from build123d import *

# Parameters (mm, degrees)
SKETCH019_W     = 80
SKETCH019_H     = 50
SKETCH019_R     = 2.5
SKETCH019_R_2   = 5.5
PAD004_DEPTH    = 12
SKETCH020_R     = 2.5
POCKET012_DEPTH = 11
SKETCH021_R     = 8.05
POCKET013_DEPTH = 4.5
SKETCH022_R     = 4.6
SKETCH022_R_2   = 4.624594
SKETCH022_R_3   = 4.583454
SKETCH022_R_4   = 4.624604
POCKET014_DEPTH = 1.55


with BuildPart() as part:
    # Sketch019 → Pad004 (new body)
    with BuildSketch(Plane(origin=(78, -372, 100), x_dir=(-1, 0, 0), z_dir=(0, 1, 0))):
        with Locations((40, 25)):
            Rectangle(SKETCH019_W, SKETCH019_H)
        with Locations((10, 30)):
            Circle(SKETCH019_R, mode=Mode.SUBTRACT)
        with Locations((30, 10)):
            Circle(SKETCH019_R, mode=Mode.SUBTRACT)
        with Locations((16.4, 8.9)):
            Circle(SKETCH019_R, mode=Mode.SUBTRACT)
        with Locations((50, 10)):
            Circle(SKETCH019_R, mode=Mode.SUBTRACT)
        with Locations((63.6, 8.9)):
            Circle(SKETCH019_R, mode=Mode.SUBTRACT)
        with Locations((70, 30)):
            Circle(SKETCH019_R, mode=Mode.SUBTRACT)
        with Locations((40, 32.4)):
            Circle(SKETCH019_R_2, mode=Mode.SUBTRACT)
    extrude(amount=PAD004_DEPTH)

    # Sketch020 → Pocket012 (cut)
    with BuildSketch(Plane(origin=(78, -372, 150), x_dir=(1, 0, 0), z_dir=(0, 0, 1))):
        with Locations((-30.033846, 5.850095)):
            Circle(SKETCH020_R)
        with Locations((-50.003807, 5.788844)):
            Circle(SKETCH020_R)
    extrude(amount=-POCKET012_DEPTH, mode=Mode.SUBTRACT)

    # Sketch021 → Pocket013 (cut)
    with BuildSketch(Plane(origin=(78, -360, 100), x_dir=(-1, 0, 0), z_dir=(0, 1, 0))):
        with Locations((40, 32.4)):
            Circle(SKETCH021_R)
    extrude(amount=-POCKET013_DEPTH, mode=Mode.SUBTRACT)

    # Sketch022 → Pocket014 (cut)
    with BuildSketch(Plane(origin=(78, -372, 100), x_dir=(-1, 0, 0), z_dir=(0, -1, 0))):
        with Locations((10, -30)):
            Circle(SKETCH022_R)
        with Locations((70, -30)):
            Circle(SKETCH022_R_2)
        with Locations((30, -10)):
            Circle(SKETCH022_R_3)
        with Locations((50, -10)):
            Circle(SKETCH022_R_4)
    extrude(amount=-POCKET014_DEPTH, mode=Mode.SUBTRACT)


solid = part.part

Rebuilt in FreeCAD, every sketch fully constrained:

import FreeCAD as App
import Part
import Sketcher

V = App.Vector


def add_polygon(sketch, points):
    """Adds a closed chain of lines whose ends are joined by coincident constraints."""
    first, n = sketch.GeometryCount, len(points)
    for a, b in zip(points, points[1:] + points[:1]):
        sketch.addGeometry(Part.LineSegment(App.Vector(*a, 0), App.Vector(*b, 0)), False)
    for i in range(n):
        sketch.addConstraint(Sketcher.Constraint("Coincident", first + i, 2, first + (i + 1) % n, 1))

doc = App.newDocument("Part")
body = doc.addObject("PartDesign::Body", "Body")

# Sketch on XZ plane
sketch1 = body.newObject("Sketcher::SketchObject", "Sketch")
sketch1.AttachmentSupport = (doc.getObject("XZ_Plane"), [""])
sketch1.MapMode = "FlatFace"
sketch1.AttachmentOffset = App.Placement(V(0, 0, 372), App.Rotation())
add_polygon(sketch1, [(78, 150), (78, 100), (-2, 100), (-2, 150)])  # lines 0-3
sketch1.addGeometry(Part.Circle(V(61.6, 108.9, 0), V(0, 0, 1), 2.5), False)  # 4
sketch1.addGeometry(Part.Circle(V(48, 110, 0), V(0, 0, 1), 2.5), False)  # 5
sketch1.addGeometry(Part.Circle(V(28, 110, 0), V(0, 0, 1), 2.5), False)  # 6
sketch1.addGeometry(Part.Circle(V(14.4, 108.9, 0), V(0, 0, 1), 2.5), False)  # 7
sketch1.addGeometry(Part.Circle(V(68, 130, 0), V(0, 0, 1), 2.5), False)  # 8
sketch1.addGeometry(Part.Circle(V(8, 130, 0), V(0, 0, 1), 2.5), False)  # 9
sketch1.addGeometry(Part.Circle(V(38, 132.4, 0), V(0, 0, 1), 5.5), False)  # 10
sketch1.addConstraint(Sketcher.Constraint("Vertical", 0))
sketch1.addConstraint(Sketcher.Constraint("Horizontal", 1))
sketch1.addConstraint(Sketcher.Constraint("Vertical", 2))
sketch1.addConstraint(Sketcher.Constraint("Horizontal", 3))
sketch1.addConstraint(Sketcher.Constraint("Equal", 4, 5))
sketch1.addConstraint(Sketcher.Constraint("Equal", 5, 6))
sketch1.addConstraint(Sketcher.Constraint("Equal", 6, 7))
sketch1.addConstraint(Sketcher.Constraint("Equal", 7, 8))
sketch1.addConstraint(Sketcher.Constraint("Equal", 8, 9))
sketch1.addConstraint(Sketcher.Constraint("Horizontal", 5, 3, 6, 3))
sketch1.addConstraint(Sketcher.Constraint("Horizontal", 4, 3, 7, 3))
sketch1.addConstraint(Sketcher.Constraint("Horizontal", 8, 3, 9, 3))
sketch1.addConstraint(Sketcher.Constraint("Diameter", 4, 5.0))
sketch1.addConstraint(Sketcher.Constraint("Diameter", 10, 11.0))
sketch1.addConstraint(Sketcher.Constraint("DistanceX", 1, 2, 1, 1, 80.0))
sketch1.addConstraint(Sketcher.Constraint("DistanceY", 0, 2, 0, 1, 50.0))
sketch1.addConstraint(Sketcher.Constraint("DistanceX", -1, 1, 5, 3, 48.0))
sketch1.addConstraint(Sketcher.Constraint("DistanceY", -1, 1, 5, 3, 110.0))
sketch1.addConstraint(Sketcher.Constraint("DistanceX", -1, 1, 6, 3, 28.0))
sketch1.addConstraint(Sketcher.Constraint("DistanceX", -1, 1, 8, 3, 68.0))
sketch1.addConstraint(Sketcher.Constraint("DistanceY", -1, 1, 8, 3, 130.0))
sketch1.addConstraint(Sketcher.Constraint("DistanceX", -1, 1, 9, 3, 8.0))
sketch1.addConstraint(Sketcher.Constraint("DistanceX", -1, 1, 10, 3, 38.0))
sketch1.addConstraint(Sketcher.Constraint("DistanceX", -1, 1, 0, 2, 78.0))
sketch1.addConstraint(Sketcher.Constraint("DistanceY", -1, 1, 0, 2, 100.0))
sketch1.addConstraint(Sketcher.Constraint("DistanceX", -1, 1, 4, 3, 61.6))
sketch1.addConstraint(Sketcher.Constraint("DistanceY", -1, 1, 4, 3, 108.9))
sketch1.addConstraint(Sketcher.Constraint("DistanceX", -1, 1, 7, 3, 14.4))
sketch1.addConstraint(Sketcher.Constraint("DistanceY", -1, 1, 10, 3, 132.4))
pad1 = body.newObject("PartDesign::Pad", "Pad")
pad1.Profile = sketch1
pad1.Length = 12
pad1.Reversed = True

# Sketch on XY plane
sketch2 = body.newObject("Sketcher::SketchObject", "Sketch001")
sketch2.AttachmentSupport = (doc.getObject("XY_Plane"), [""])
sketch2.MapMode = "FlatFace"
sketch2.AttachmentOffset = App.Placement(V(0, 0, 150), App.Rotation())
sketch2.addGeometry(Part.Circle(V(47.966154, -366.149905, 0), V(0, 0, 1), 2.5), False)
sketch2.addGeometry(Part.Circle(V(27.996193, -366.211156, 0), V(0, 0, 1), 2.5), False)
sketch2.addConstraint(Sketcher.Constraint("Equal", 0, 1))
sketch2.addConstraint(Sketcher.Constraint("Diameter", 0, 5.0))
sketch2.addConstraint(Sketcher.Constraint("DistanceX", 1, 3, 0, 3, 19.969961))
sketch2.addConstraint(Sketcher.Constraint("DistanceY", 1, 3, 0, 3, 0.061251))
sketch2.addConstraint(Sketcher.Constraint("DistanceX", -1, 1, 0, 3, 47.966154))
sketch2.addConstraint(Sketcher.Constraint("DistanceY", 0, 3, -1, 1, 366.149905))
pocket1 = body.newObject("PartDesign::Pocket", "Pocket")
pocket1.Profile = sketch2
pocket1.Length = 11

# Sketch on XZ plane
sketch3 = body.newObject("Sketcher::SketchObject", "Sketch002")
sketch3.AttachmentSupport = (doc.getObject("XZ_Plane"), [""])
sketch3.MapMode = "FlatFace"
sketch3.AttachmentOffset = App.Placement(V(0, 0, 360), App.Rotation())
sketch3.addGeometry(Part.Circle(V(38, 132.4, 0), V(0, 0, 1), 8.05), False)
sketch3.addConstraint(Sketcher.Constraint("Diameter", 0, 16.1))
sketch3.addConstraint(Sketcher.Constraint("DistanceX", -1, 1, 0, 3, 38.0))
sketch3.addConstraint(Sketcher.Constraint("DistanceY", -1, 1, 0, 3, 132.4))
pocket2 = body.newObject("PartDesign::Pocket", "Pocket001")
pocket2.Profile = sketch3
pocket2.Length = 4.5
pocket2.Reversed = True

# Sketch on XZ plane
sketch4 = body.newObject("Sketcher::SketchObject", "Sketch003")
sketch4.AttachmentSupport = (doc.getObject("XZ_Plane"), [""])
sketch4.MapMode = "FlatFace"
sketch4.AttachmentOffset = App.Placement(V(0, 0, 372), App.Rotation())
sketch4.addGeometry(Part.Circle(V(68, 130, 0), V(0, 0, 1), 4.6), False)
sketch4.addGeometry(Part.Circle(V(8, 130, 0), V(0, 0, 1), 4.624594), False)
sketch4.addGeometry(Part.Circle(V(48, 110, 0), V(0, 0, 1), 4.583454), False)
sketch4.addGeometry(Part.Circle(V(28, 110, 0), V(0, 0, 1), 4.624604), False)
sketch4.addConstraint(Sketcher.Constraint("Horizontal", 0, 3, 1, 3))
sketch4.addConstraint(Sketcher.Constraint("Horizontal", 2, 3, 3, 3))
sketch4.addConstraint(Sketcher.Constraint("Diameter", 0, 9.2))
sketch4.addConstraint(Sketcher.Constraint("DistanceX", -1, 1, 0, 3, 68.0))
sketch4.addConstraint(Sketcher.Constraint("DistanceY", -1, 1, 0, 3, 130.0))
sketch4.addConstraint(Sketcher.Constraint("DistanceX", -1, 1, 1, 3, 8.0))
sketch4.addConstraint(Sketcher.Constraint("DistanceX", -1, 1, 2, 3, 48.0))
sketch4.addConstraint(Sketcher.Constraint("DistanceY", -1, 1, 2, 3, 110.0))
sketch4.addConstraint(Sketcher.Constraint("DistanceX", -1, 1, 3, 3, 28.0))
sketch4.addConstraint(Sketcher.Constraint("Diameter", 1, 9.249188))
sketch4.addConstraint(Sketcher.Constraint("Diameter", 2, 9.166908))
sketch4.addConstraint(Sketcher.Constraint("Diameter", 3, 9.249208))
pocket3 = body.newObject("PartDesign::Pocket", "Pocket002")
pocket3.Profile = sketch4
pocket3.Length = 1.55

doc.recompute()
